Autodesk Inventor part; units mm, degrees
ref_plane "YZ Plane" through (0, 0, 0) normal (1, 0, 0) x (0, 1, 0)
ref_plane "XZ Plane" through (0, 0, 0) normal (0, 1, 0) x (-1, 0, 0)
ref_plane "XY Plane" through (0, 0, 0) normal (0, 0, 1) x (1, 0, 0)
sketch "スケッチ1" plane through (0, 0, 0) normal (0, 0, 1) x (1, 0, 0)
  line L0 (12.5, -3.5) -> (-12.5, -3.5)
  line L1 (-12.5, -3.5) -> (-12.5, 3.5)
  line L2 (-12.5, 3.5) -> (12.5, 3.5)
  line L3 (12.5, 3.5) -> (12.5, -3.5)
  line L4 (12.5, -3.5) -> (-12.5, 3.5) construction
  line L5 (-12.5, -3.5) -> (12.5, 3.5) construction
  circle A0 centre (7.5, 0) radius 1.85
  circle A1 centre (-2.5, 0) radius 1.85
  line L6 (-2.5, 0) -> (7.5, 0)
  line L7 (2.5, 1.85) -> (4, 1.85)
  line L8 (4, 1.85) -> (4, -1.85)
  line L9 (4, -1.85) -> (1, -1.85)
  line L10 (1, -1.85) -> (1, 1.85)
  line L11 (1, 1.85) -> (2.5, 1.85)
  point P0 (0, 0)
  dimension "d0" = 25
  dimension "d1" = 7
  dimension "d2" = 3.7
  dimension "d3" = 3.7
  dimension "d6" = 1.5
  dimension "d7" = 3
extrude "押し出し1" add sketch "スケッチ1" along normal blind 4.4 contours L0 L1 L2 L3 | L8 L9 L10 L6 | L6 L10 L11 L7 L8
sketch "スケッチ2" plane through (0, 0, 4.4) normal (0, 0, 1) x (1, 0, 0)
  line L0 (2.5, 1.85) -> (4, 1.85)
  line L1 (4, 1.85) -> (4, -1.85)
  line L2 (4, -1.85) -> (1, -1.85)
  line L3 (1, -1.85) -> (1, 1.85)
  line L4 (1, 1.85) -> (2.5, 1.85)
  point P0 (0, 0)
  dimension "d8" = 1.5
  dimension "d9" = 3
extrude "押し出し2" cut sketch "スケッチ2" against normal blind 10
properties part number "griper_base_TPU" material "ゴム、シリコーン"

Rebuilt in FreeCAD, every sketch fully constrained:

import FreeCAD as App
import Part
import Sketcher
from FreeCAD import Vector
Q = App.Units.Quantity

doc = App.newDocument("Part")
body = doc.addObject("PartDesign::Body", "Body")

# Sketch on XY plane
sketch1 = body.newObject("Sketcher::SketchObject", "Sketch")
sketch1.AttachmentSupport = (doc.getObject("XY_Plane"), [""])
sketch1.MapMode = "FlatFace"
sketch1.addGeometry([
    Part.LineSegment(Vector(-12.5, -3.5, 0), Vector(12.5, -3.5, 0)),  # 0
    Part.LineSegment(Vector(12.5, -3.5, 0), Vector(12.5, 3.5, 0)),  # 1
    Part.LineSegment(Vector(12.5, 3.5, 0), Vector(-12.5, 3.5, 0)),  # 2
    Part.LineSegment(Vector(-12.5, 3.5, 0), Vector(-12.5, -3.5, 0)),  # 3
    Part.Circle(Vector(-2.5, 0, 0), Vector(0, 0, 1), 1.9),  # 4
    Part.Circle(Vector(7.5, 0, 0), Vector(0, 0, 1), 1.9),  # 5
], False)
sketch1.addConstraint([
    Sketcher.Constraint("Coincident", 0, 2, 1, 1),
    Sketcher.Constraint("Coincident", 1, 2, 2, 1),
    Sketcher.Constraint("Coincident", 2, 2, 3, 1),
    Sketcher.Constraint("Coincident", 3, 2, 0, 1),
    Sketcher.Constraint("Horizontal", 0),
    Sketcher.Constraint("Vertical", 1),
    Sketcher.Constraint("Horizontal", 2),
    Sketcher.Constraint("Vertical", 3),
    Sketcher.Constraint("Equal", 4, 5),
    Sketcher.Constraint("Symmetric", 0, 2, 2, 2, -1, 1),
    Sketcher.Constraint("PointOnObject", 4, 3, -1),
    Sketcher.Constraint("PointOnObject", 5, 3, -1),
    Sketcher.Constraint("Diameter", 4, Q("3.7 mm")),
    Sketcher.Constraint("DistanceX", 0, 1, 0, 2, Q("25 mm")),
    Sketcher.Constraint("DistanceY", 1, 1, 1, 2, Q("7 mm")),
    Sketcher.Constraint("DistanceX", 4, 3, 5, 3, Q("10 mm")),
    Sketcher.Constraint("DistanceX", 5, 3, 0, 2, Q("5 mm")),
])
pad1 = body.newObject("PartDesign::Pad", "Pad")
pad1.Profile = sketch1
pad1.Length = 4.4

# Sketch on XY plane
sketch2 = body.newObject("Sketcher::SketchObject", "Sketch001")
sketch2.AttachmentSupport = (doc.getObject("XY_Plane"), [""])
sketch2.MapMode = "FlatFace"
sketch2.AttachmentOffset = App.Placement(Vector(0, 0, 4.4), App.Rotation())
sketch2.addGeometry([
    Part.LineSegment(Vector(4, 1.9, 0), Vector(1, 1.9, 0)),
    Part.LineSegment(Vector(1, 1.9, 0), Vector(1, -1.9, 0)),
    Part.LineSegment(Vector(1, -1.9, 0), Vector(4, -1.9, 0)),
    Part.LineSegment(Vector(4, -1.9, 0), Vector(4, 1.9, 0)),
], False)
sketch2.addConstraint([
    Sketcher.Constraint("Coincident", 0, 2, 1, 1),
    Sketcher.Constraint("Coincident", 1, 2, 2, 1),
    Sketcher.Constraint("Coincident", 2, 2, 3, 1),
    Sketcher.Constraint("Coincident", 3, 2, 0, 1),
    Sketcher.Constraint("Horizontal", 0),
    Sketcher.Constraint("Vertical", 1),
    Sketcher.Constraint("Horizontal", 2),
    Sketcher.Constraint("Vertical", 3),
    Sketcher.Constraint("DistanceX", 0, 2, 0, 1, Q("3 mm")),
    Sketcher.Constraint("DistanceY", 1, 2, 1, 1, Q("3.7 mm")),
    Sketcher.Constraint("DistanceX", -1, 1, 0, 2, Q("1 mm")),
    Sketcher.Constraint("DistanceY", -1, 1, 0, 2, Q("1.85 mm")),
])
pocket1 = body.newObject("PartDesign::Pocket", "Pocket")
pocket1.Profile = sketch2
pocket1.Length = 10

doc.recompute()
